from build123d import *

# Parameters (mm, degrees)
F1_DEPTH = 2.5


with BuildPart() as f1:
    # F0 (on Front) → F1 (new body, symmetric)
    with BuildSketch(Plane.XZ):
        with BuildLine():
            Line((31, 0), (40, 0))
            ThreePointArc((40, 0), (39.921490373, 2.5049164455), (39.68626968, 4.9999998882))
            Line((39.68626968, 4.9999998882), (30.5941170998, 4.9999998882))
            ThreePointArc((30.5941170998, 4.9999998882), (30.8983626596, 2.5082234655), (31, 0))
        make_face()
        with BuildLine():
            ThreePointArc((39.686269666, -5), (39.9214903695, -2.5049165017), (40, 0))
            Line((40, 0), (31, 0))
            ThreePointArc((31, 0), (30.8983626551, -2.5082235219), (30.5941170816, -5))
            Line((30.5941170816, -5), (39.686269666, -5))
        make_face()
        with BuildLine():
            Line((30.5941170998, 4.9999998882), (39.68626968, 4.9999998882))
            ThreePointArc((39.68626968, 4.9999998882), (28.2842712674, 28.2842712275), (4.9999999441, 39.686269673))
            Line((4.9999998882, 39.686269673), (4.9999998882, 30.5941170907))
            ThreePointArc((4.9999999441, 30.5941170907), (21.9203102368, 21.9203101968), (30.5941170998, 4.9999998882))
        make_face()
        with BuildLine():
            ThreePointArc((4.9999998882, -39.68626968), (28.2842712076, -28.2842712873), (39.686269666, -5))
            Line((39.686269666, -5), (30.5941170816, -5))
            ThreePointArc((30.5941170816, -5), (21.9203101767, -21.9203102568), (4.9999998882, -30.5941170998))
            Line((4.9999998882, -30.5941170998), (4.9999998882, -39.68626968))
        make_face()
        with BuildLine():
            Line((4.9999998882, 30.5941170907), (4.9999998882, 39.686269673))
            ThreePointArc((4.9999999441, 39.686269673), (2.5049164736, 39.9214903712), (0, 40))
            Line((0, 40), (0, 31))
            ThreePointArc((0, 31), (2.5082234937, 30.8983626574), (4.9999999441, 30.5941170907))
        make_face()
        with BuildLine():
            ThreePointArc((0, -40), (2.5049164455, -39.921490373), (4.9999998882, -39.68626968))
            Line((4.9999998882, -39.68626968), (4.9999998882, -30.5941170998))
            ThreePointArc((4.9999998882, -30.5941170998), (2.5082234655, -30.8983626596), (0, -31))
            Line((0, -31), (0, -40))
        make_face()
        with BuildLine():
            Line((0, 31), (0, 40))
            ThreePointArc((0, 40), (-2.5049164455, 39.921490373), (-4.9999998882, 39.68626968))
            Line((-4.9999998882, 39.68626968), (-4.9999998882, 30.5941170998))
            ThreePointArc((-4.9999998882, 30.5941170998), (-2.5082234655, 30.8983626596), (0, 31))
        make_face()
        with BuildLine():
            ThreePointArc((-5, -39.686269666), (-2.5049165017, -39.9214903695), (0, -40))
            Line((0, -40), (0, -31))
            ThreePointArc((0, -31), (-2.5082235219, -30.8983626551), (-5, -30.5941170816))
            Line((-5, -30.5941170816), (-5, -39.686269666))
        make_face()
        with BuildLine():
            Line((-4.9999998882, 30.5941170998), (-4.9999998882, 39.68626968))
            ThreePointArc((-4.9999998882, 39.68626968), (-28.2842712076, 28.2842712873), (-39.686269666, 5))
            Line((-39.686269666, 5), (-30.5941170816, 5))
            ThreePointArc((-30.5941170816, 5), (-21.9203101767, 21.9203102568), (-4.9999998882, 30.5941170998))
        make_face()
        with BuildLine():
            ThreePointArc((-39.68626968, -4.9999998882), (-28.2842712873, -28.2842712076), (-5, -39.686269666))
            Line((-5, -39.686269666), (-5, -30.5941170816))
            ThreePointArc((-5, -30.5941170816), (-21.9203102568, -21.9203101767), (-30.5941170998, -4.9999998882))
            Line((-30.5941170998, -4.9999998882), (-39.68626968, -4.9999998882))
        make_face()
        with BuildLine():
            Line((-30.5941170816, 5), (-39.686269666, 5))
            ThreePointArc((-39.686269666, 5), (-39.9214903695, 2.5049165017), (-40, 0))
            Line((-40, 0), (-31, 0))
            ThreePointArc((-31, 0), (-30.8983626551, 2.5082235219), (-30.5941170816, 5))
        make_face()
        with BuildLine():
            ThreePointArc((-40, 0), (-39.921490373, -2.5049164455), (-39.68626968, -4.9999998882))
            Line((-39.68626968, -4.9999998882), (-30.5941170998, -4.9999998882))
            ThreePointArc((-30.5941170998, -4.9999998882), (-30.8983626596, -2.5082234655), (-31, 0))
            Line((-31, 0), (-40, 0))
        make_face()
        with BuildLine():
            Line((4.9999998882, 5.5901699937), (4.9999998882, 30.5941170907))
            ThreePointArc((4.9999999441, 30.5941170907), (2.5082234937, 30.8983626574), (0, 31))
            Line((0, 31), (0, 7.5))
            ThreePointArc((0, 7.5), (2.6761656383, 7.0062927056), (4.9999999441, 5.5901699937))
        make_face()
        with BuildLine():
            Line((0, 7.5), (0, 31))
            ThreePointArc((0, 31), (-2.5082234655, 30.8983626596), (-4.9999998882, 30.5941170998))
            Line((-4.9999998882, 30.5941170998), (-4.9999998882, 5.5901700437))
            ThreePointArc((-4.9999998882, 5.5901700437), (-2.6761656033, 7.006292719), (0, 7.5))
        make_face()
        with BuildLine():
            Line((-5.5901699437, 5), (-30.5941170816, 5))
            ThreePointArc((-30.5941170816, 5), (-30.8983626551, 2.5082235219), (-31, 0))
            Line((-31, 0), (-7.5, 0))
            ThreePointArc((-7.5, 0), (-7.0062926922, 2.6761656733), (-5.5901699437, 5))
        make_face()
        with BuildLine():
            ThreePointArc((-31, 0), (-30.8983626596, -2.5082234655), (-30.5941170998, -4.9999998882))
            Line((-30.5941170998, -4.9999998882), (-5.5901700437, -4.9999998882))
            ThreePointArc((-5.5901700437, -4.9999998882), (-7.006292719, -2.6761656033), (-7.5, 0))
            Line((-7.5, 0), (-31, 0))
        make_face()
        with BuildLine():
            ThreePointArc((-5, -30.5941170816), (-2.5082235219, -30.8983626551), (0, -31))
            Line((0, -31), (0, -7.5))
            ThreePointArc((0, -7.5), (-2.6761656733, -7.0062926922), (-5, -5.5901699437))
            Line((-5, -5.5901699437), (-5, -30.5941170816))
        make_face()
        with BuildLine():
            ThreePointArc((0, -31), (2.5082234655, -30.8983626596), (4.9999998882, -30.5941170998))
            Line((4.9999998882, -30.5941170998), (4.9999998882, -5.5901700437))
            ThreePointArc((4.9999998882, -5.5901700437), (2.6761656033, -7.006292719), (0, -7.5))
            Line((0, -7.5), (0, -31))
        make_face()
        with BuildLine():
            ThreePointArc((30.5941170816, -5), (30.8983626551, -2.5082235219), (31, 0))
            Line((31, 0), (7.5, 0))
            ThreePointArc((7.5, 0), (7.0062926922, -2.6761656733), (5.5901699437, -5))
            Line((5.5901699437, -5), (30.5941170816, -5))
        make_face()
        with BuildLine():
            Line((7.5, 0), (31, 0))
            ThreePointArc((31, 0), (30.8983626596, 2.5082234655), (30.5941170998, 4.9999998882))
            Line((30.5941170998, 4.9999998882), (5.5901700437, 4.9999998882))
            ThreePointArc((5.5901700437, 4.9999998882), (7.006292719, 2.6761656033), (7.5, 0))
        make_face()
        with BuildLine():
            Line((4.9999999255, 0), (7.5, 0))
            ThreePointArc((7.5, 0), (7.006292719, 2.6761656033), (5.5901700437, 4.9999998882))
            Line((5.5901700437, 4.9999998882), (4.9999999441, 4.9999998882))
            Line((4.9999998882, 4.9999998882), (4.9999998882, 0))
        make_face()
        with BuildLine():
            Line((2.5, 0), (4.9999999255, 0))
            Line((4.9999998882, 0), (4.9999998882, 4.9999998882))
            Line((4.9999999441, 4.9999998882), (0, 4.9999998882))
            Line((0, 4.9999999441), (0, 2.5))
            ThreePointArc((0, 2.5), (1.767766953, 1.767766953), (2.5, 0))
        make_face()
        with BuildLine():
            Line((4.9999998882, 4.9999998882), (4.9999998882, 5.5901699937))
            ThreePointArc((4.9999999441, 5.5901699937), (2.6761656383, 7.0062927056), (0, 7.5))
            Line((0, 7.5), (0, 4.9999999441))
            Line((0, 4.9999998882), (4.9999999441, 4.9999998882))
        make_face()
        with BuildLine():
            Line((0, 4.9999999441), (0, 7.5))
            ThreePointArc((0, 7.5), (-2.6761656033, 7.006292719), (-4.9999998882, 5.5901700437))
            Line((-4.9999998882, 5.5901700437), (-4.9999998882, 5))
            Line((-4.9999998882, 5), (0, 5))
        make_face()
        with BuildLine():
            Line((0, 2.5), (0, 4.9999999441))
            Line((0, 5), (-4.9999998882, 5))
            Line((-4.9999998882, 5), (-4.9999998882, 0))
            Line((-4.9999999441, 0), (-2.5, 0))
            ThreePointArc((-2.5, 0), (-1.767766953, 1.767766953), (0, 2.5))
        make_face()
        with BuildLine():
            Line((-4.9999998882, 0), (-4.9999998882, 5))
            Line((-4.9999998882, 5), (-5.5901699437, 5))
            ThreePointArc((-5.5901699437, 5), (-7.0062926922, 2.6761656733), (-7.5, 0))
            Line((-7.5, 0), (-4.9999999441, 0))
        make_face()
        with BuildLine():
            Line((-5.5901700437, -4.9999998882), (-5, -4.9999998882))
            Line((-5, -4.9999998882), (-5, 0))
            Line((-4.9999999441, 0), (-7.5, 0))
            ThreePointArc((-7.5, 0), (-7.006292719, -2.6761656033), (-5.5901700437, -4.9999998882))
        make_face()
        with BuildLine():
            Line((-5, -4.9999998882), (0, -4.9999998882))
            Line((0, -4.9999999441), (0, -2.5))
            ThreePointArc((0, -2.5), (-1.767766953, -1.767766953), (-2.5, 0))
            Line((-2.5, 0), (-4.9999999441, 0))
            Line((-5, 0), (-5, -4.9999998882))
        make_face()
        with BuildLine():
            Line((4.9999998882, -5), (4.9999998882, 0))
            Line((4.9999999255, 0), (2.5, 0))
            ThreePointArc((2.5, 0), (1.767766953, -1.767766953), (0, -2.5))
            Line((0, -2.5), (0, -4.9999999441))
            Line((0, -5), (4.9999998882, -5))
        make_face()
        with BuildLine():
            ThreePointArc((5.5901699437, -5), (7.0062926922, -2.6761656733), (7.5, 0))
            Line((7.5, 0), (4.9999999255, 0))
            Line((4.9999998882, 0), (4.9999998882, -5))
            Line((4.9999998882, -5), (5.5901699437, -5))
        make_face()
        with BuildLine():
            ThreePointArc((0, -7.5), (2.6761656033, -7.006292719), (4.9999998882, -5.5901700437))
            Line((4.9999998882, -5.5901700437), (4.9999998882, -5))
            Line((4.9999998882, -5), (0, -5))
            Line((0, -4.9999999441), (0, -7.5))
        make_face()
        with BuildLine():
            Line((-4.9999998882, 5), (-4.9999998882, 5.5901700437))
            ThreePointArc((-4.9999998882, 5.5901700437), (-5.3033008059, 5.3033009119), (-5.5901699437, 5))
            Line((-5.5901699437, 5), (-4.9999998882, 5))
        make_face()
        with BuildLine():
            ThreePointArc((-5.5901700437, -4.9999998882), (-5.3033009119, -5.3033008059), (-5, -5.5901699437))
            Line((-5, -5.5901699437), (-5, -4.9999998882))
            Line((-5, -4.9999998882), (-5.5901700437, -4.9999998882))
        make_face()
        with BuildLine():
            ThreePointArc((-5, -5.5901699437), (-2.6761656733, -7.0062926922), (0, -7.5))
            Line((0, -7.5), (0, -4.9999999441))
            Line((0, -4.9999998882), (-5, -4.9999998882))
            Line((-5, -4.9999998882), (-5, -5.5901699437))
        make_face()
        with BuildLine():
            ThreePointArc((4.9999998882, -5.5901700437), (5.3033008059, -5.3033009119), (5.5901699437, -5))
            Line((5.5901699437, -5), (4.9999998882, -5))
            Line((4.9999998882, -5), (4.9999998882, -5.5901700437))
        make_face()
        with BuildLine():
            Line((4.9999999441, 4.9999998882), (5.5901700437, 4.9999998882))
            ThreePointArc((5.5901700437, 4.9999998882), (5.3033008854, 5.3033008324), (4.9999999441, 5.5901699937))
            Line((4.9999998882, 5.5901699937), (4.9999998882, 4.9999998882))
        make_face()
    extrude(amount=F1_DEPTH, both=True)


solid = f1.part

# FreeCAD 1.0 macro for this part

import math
import FreeCAD as App
import Part
import Sketcher

V = App.Vector
Q = App.Units.Quantity

doc = App.newDocument("Part")
body = doc.addObject("PartDesign::Body", "Body")

# Sketch on XZ plane
sketch1 = body.newObject("Sketcher::SketchObject", "Sketch")
sketch1.AttachmentSupport = (doc.getObject("XZ_Plane"), [""])
sketch1.MapMode = "FlatFace"
sketch1.addGeometry(Part.ArcOfCircle(Part.Circle(V(0, 0, 0), V(0, 0, 1), 40), math.radians(0), math.radians(7.18)), False)
sketch1.addGeometry(Part.ArcOfCircle(Part.Circle(V(0, 0, 0), V(0, 0, 1), 40), math.radians(7), math.radians(83)), False)
sketch1.addGeometry(Part.ArcOfCircle(Part.Circle(V(0, 0, 0), V(0, 0, 1), 40), math.radians(82.82), math.radians(90)), False)
sketch1.addGeometry(Part.ArcOfCircle(Part.Circle(V(0, 0, 0), V(0, 0, 1), 40), math.radians(90), math.radians(97.18)), False)
sketch1.addGeometry(Part.ArcOfCircle(Part.Circle(V(0, 0, 0), V(0, 0, 1), 40), math.radians(97), math.radians(173)), False)
sketch1.addGeometry(Part.ArcOfCircle(Part.Circle(V(0, 0, 0), V(0, 0, 1), 40), math.radians(172.82), math.radians(180)), False)
sketch1.addGeometry(Part.ArcOfCircle(Part.Circle(V(0, 0, 0), V(0, 0, 1), 40), math.radians(180), math.radians(187.18)), False)
sketch1.addGeometry(Part.ArcOfCircle(Part.Circle(V(0, 0, 0), V(0, 0, 1), 40), math.radians(-173), math.radians(-97)), False)
sketch1.addGeometry(Part.ArcOfCircle(Part.Circle(V(0, 0, 0), V(0, 0, 1), 40), math.radians(-97.18), math.radians(-90)), False)
sketch1.addGeometry(Part.ArcOfCircle(Part.Circle(V(0, 0, 0), V(0, 0, 1), 40), math.radians(-90), math.radians(-82.82)), False)
sketch1.addGeometry(Part.ArcOfCircle(Part.Circle(V(0, 0, 0), V(0, 0, 1), 40), math.radians(-83), math.radians(-7)), False)
sketch1.addGeometry(Part.ArcOfCircle(Part.Circle(V(0, 0, 0), V(0, 0, 1), 40), math.radians(-7.18), math.radians(0)), False)
sketch1.addGeometry(Part.ArcOfCircle(Part.Circle(V(0, 0, 0), V(0, 0, 1), 7.5), math.radians(-138.19), math.radians(-131.81)), False)
sketch1.addGeometry(Part.LineSegment(V(-5, -5.6, 0), V(-5, -30.6, 0)), False)
sketch1.addGeometry(Part.ArcOfCircle(Part.Circle(V(0, 0, 0), V(0, 0, 1), 31), math.radians(-171), math.radians(-99)), False)
sketch1.addGeometry(Part.LineSegment(V(-30.6, -5, 0), V(-5.6, -5, 0)), False)
sketch1.addGeometry(Part.ArcOfCircle(Part.Circle(V(0, 0, 0), V(0, 0, 1), 31), math.radians(-81), math.radians(-9)), False)
sketch1.addGeometry(Part.LineSegment(V(5, -30.6, 0), V(5, -5.6, 0)), False)
sketch1.addGeometry(Part.ArcOfCircle(Part.Circle(V(0, 0, 0), V(0, 0, 1), 7.5), math.radians(-48.19), math.radians(-41.81)), False)
sketch1.addGeometry(Part.LineSegment(V(5.6, -5, 0), V(30.6, -5, 0)), False)
sketch1.addGeometry(Part.ArcOfCircle(Part.Circle(V(0, 0, 0), V(0, 0, 1), 2.5), math.radians(90), math.radians(180)), False)
sketch1.addGeometry(Part.ArcOfCircle(Part.Circle(V(0, 0, 0), V(0, 0, 1), 2.5), math.radians(0), math.radians(90)), False)
sketch1.addGeometry(Part.ArcOfCircle(Part.Circle(V(0, 0, 0), V(0, 0, 1), 2.5), math.radians(-90), math.radians(0)), False)
sketch1.addGeometry(Part.ArcOfCircle(Part.Circle(V(0, 0, 0), V(0, 0, 1), 2.5), math.radians(180), math.radians(270)), False)
sketch1.addGeometry(Part.ArcOfCircle(Part.Circle(V(0, 0, 0), V(0, 0, 1), 31), math.radians(99), math.radians(171)), False)
sketch1.addGeometry(Part.LineSegment(V(-5, 30.6, 0), V(-5, 5.6, 0)), False)
sketch1.addGeometry(Part.ArcOfCircle(Part.Circle(V(0, 0, 0), V(0, 0, 1), 7.5), math.radians(131.81), math.radians(138.19)), False)
sketch1.addGeometry(Part.LineSegment(V(-5.6, 5, 0), V(-30.6, 5, 0)), False)
sketch1.addGeometry(Part.ArcOfCircle(Part.Circle(V(0, 0, 0), V(0, 0, 1), 31), math.radians(9), math.radians(81)), False)
sketch1.addGeometry(Part.LineSegment(V(30.6, 5, 0), V(5.6, 5, 0)), False)
sketch1.addGeometry(Part.ArcOfCircle(Part.Circle(V(0, 0, 0), V(0, 0, 1), 7.5), math.radians(41.81), math.radians(48.19)), False)
sketch1.addGeometry(Part.LineSegment(V(5, 5.6, 0), V(5, 30.6, 0)), False)
sketch1.addConstraint(Sketcher.Constraint("Tangent", 0, 2, 1, 1))
sketch1.addConstraint(Sketcher.Constraint("Tangent", 1, 2, 2, 1))
sketch1.addConstraint(Sketcher.Constraint("Tangent", 2, 2, 3, 1))
sketch1.addConstraint(Sketcher.Constraint("Tangent", 3, 2, 4, 1))
sketch1.addConstraint(Sketcher.Constraint("Tangent", 4, 2, 5, 1))
sketch1.addConstraint(Sketcher.Constraint("Tangent", 5, 2, 6, 1))
sketch1.addConstraint(Sketcher.Constraint("Tangent", 6, 2, 7, 1))
sketch1.addConstraint(Sketcher.Constraint("Tangent", 7, 2, 8, 1))
sketch1.addConstraint(Sketcher.Constraint("Tangent", 8, 2, 9, 1))
sketch1.addConstraint(Sketcher.Constraint("Tangent", 9, 2, 10, 1))
sketch1.addConstraint(Sketcher.Constraint("Tangent", 10, 2, 11, 1))
sketch1.addConstraint(Sketcher.Constraint("Tangent", 11, 2, 0, 1))
sketch1.addConstraint(Sketcher.Constraint("Coincident", 12, 2, 13, 1))
sketch1.addConstraint(Sketcher.Constraint("Coincident", 13, 2, 14, 2))
sketch1.addConstraint(Sketcher.Constraint("Coincident", 14, 1, 15, 1))
sketch1.addConstraint(Sketcher.Constraint("Coincident", 15, 2, 12, 1))
sketch1.addConstraint(Sketcher.Constraint("Coincident", 16, 1, 17, 1))
sketch1.addConstraint(Sketcher.Constraint("Coincident", 17, 2, 18, 1))
sketch1.addConstraint(Sketcher.Constraint("Coincident", 18, 2, 19, 1))
sketch1.addConstraint(Sketcher.Constraint("Coincident", 19, 2, 16, 2))
sketch1.addConstraint(Sketcher.Constraint("Tangent", 20, 1, 21, 2))
sketch1.addConstraint(Sketcher.Constraint("Tangent", 21, 1, 22, 2))
sketch1.addConstraint(Sketcher.Constraint("Tangent", 22, 1, 23, 2))
sketch1.addConstraint(Sketcher.Constraint("Tangent", 23, 1, 20, 2))
sketch1.addConstraint(Sketcher.Constraint("Coincident", 24, 1, 25, 1))
sketch1.addConstraint(Sketcher.Constraint("Coincident", 25, 2, 26, 1))
sketch1.addConstraint(Sketcher.Constraint("Coincident", 26, 2, 27, 1))
sketch1.addConstraint(Sketcher.Constraint("Coincident", 27, 2, 24, 2))
sketch1.addConstraint(Sketcher.Constraint("Coincident", 28, 1, 29, 1))
sketch1.addConstraint(Sketcher.Constraint("Coincident", 29, 2, 30, 1))
sketch1.addConstraint(Sketcher.Constraint("Coincident", 30, 2, 31, 1))
sketch1.addConstraint(Sketcher.Constraint("Coincident", 31, 2, 28, 2))
sketch1.addConstraint(Sketcher.Constraint("Vertical", 13))
sketch1.addConstraint(Sketcher.Constraint("Horizontal", 15))
sketch1.addConstraint(Sketcher.Constraint("Vertical", 17))
sketch1.addConstraint(Sketcher.Constraint("Horizontal", 19))
sketch1.addConstraint(Sketcher.Constraint("Vertical", 25))
sketch1.addConstraint(Sketcher.Constraint("Horizontal", 27))
sketch1.addConstraint(Sketcher.Constraint("Horizontal", 29))
sketch1.addConstraint(Sketcher.Constraint("Vertical", 31))
sketch1.addConstraint(Sketcher.Constraint("Coincident", 0, 3, -1, 1))
sketch1.addConstraint(Sketcher.Constraint("Coincident", 2, 3, -1, 1))
sketch1.addConstraint(Sketcher.Constraint("Coincident", 4, 3, -1, 1))
sketch1.addConstraint(Sketcher.Constraint("Coincident", 6, 3, -1, 1))
sketch1.addConstraint(Sketcher.Constraint("Coincident", 8, 3, -1, 1))
sketch1.addConstraint(Sketcher.Constraint("Coincident", 12, 3, -1, 1))
sketch1.addConstraint(Sketcher.Constraint("Coincident", 14, 3, -1, 1))
sketch1.addConstraint(Sketcher.Constraint("Coincident", 16, 3, -1, 1))
sketch1.addConstraint(Sketcher.Constraint("Coincident", 18, 3, -1, 1))
sketch1.addConstraint(Sketcher.Constraint("Coincident", 20, 3, -1, 1))
sketch1.addConstraint(Sketcher.Constraint("Coincident", 24, 3, -1, 1))
sketch1.addConstraint(Sketcher.Constraint("Coincident", 26, 3, -1, 1))
sketch1.addConstraint(Sketcher.Constraint("Coincident", 28, 3, -1, 1))
sketch1.addConstraint(Sketcher.Constraint("Coincident", 30, 3, -1, 1))
sketch1.addConstraint(Sketcher.Constraint("Equal", 8, 9))
sketch1.addConstraint(Sketcher.Constraint("Equal", 14, 16))
sketch1.addConstraint(Sketcher.Constraint("Equal", 12, 18))
sketch1.addConstraint(Sketcher.Constraint("Equal", 20, 21))
sketch1.addConstraint(Sketcher.Constraint("Equal", 16, 24))
sketch1.addConstraint(Sketcher.Constraint("Equal", 18, 26))
sketch1.addConstraint(Sketcher.Constraint("Equal", 24, 28))
sketch1.addConstraint(Sketcher.Constraint("Equal", 26, 30))
sketch1.addConstraint(Sketcher.Constraint("PointOnObject", 2, 2, -2))
sketch1.addConstraint(Sketcher.Constraint("PointOnObject", 5, 2, -1))
sketch1.addConstraint(Sketcher.Constraint("PointOnObject", 8, 2, -2))
sketch1.addConstraint(Sketcher.Constraint("PointOnObject", 11, 2, -1))
sketch1.addConstraint(Sketcher.Constraint("PointOnObject", 20, 1, -2))
sketch1.addConstraint(Sketcher.Constraint("PointOnObject", 21, 1, -1))
sketch1.addConstraint(Sketcher.Constraint("PointOnObject", 22, 1, -2))
sketch1.addConstraint(Sketcher.Constraint("PointOnObject", 23, 1, -1))
sketch1.addConstraint(Sketcher.Constraint("Horizontal", 1, 2, 3, 2))
sketch1.addConstraint(Sketcher.Constraint("Horizontal", 0, 2, 4, 2))
sketch1.addConstraint(Sketcher.Constraint("Horizontal", 7, 2, 9, 2))
sketch1.addConstraint(Sketcher.Constraint("Horizontal", 6, 2, 10, 2))
sketch1.addConstraint(Sketcher.Constraint("Horizontal", 10, 2, 14, 1))
sketch1.addConstraint(Sketcher.Constraint("Horizontal", 13, 2, 16, 1))
sketch1.addConstraint(Sketcher.Constraint("Horizontal", 15, 2, 18, 2))
sketch1.addConstraint(Sketcher.Constraint("Horizontal", 4, 2, 26, 2))
sketch1.addConstraint(Sketcher.Constraint("Horizontal", 27, 2, 28, 1))
sketch1.addConstraint(Sketcher.Constraint("Horizontal", 25, 2, 30, 2))
sketch1.addConstraint(Sketcher.Constraint("Vertical", 4, 2, 6, 2))
sketch1.addConstraint(Sketcher.Constraint("Vertical", 3, 2, 7, 2))
sketch1.addConstraint(Sketcher.Constraint("Vertical", 7, 2, 12, 2))
sketch1.addConstraint(Sketcher.Constraint("Vertical", 13, 2, 24, 1))
sketch1.addConstraint(Sketcher.Constraint("Equal", 29, 13))
sketch1.addConstraint(Sketcher.Constraint("Radius", 0, Q("40 mm")))
sketch1.addConstraint(Sketcher.Constraint("Radius", 14, Q("31 mm")))
sketch1.addConstraint(Sketcher.Constraint("Radius", 12, Q("7.5 mm")))
sketch1.addConstraint(Sketcher.Constraint("Radius", 20, Q("2.5 mm")))
sketch1.addConstraint(Sketcher.Constraint("DistanceY", -1, 1, 0, 2, Q("5 mm")))
pad1 = body.newObject("PartDesign::Pad", "Pad")
pad1.Profile = sketch1
pad1.Length = 5
pad1.Midplane = True

doc.recompute()
